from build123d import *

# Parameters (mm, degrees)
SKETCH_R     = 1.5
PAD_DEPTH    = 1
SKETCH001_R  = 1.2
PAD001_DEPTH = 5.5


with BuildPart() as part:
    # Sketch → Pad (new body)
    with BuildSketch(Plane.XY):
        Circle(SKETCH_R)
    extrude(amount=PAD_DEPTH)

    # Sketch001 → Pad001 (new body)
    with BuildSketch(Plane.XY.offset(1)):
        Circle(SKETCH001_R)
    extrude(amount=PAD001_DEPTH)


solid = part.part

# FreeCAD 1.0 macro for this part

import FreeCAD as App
import Part
import Sketcher

V = App.Vector

doc = App.newDocument("Part")
body = doc.addObject("PartDesign::Body", "Body")

sketch1 = body.newObject("Sketcher::SketchObject", "Sketch")
sketch1.AttachmentSupport = (doc.getObject("XY_Plane"), [""])
sketch1.MapMode = "FlatFace"
sketch1.addGeometry(Part.Circle(V(0, 0, 0), V(0, 0, 1), 1.5), False)
sketch1.addConstraint([
    Sketcher.Constraint("Coincident", 0, 3, -1, 1),
    Sketcher.Constraint("Diameter", 0, 3.0),
])
pad1 = body.newObject("PartDesign::Pad", "Pad")
pad1.Profile = sketch1
pad1.Length = 1

sketch2 = body.newObject("Sketcher::SketchObject", "Sketch001")
sketch2.AttachmentSupport = (doc.getObject("XY_Plane"), [""])
sketch2.MapMode = "FlatFace"
sketch2.AttachmentOffset = App.Placement(V(0, 0, 1), App.Rotation())
sketch2.addGeometry(Part.Circle(V(0, 0, 0), V(0, 0, 1), 1.2), False)
sketch2.addConstraint([
    Sketcher.Constraint("Coincident", 0, 3, -1, 1),
    Sketcher.Constraint("Diameter", 0, 2.4),
])
pad2 = body.newObject("PartDesign::Pad", "Pad001")
pad2.Profile = sketch2
pad2.Length = 5.5

doc.recompute()
